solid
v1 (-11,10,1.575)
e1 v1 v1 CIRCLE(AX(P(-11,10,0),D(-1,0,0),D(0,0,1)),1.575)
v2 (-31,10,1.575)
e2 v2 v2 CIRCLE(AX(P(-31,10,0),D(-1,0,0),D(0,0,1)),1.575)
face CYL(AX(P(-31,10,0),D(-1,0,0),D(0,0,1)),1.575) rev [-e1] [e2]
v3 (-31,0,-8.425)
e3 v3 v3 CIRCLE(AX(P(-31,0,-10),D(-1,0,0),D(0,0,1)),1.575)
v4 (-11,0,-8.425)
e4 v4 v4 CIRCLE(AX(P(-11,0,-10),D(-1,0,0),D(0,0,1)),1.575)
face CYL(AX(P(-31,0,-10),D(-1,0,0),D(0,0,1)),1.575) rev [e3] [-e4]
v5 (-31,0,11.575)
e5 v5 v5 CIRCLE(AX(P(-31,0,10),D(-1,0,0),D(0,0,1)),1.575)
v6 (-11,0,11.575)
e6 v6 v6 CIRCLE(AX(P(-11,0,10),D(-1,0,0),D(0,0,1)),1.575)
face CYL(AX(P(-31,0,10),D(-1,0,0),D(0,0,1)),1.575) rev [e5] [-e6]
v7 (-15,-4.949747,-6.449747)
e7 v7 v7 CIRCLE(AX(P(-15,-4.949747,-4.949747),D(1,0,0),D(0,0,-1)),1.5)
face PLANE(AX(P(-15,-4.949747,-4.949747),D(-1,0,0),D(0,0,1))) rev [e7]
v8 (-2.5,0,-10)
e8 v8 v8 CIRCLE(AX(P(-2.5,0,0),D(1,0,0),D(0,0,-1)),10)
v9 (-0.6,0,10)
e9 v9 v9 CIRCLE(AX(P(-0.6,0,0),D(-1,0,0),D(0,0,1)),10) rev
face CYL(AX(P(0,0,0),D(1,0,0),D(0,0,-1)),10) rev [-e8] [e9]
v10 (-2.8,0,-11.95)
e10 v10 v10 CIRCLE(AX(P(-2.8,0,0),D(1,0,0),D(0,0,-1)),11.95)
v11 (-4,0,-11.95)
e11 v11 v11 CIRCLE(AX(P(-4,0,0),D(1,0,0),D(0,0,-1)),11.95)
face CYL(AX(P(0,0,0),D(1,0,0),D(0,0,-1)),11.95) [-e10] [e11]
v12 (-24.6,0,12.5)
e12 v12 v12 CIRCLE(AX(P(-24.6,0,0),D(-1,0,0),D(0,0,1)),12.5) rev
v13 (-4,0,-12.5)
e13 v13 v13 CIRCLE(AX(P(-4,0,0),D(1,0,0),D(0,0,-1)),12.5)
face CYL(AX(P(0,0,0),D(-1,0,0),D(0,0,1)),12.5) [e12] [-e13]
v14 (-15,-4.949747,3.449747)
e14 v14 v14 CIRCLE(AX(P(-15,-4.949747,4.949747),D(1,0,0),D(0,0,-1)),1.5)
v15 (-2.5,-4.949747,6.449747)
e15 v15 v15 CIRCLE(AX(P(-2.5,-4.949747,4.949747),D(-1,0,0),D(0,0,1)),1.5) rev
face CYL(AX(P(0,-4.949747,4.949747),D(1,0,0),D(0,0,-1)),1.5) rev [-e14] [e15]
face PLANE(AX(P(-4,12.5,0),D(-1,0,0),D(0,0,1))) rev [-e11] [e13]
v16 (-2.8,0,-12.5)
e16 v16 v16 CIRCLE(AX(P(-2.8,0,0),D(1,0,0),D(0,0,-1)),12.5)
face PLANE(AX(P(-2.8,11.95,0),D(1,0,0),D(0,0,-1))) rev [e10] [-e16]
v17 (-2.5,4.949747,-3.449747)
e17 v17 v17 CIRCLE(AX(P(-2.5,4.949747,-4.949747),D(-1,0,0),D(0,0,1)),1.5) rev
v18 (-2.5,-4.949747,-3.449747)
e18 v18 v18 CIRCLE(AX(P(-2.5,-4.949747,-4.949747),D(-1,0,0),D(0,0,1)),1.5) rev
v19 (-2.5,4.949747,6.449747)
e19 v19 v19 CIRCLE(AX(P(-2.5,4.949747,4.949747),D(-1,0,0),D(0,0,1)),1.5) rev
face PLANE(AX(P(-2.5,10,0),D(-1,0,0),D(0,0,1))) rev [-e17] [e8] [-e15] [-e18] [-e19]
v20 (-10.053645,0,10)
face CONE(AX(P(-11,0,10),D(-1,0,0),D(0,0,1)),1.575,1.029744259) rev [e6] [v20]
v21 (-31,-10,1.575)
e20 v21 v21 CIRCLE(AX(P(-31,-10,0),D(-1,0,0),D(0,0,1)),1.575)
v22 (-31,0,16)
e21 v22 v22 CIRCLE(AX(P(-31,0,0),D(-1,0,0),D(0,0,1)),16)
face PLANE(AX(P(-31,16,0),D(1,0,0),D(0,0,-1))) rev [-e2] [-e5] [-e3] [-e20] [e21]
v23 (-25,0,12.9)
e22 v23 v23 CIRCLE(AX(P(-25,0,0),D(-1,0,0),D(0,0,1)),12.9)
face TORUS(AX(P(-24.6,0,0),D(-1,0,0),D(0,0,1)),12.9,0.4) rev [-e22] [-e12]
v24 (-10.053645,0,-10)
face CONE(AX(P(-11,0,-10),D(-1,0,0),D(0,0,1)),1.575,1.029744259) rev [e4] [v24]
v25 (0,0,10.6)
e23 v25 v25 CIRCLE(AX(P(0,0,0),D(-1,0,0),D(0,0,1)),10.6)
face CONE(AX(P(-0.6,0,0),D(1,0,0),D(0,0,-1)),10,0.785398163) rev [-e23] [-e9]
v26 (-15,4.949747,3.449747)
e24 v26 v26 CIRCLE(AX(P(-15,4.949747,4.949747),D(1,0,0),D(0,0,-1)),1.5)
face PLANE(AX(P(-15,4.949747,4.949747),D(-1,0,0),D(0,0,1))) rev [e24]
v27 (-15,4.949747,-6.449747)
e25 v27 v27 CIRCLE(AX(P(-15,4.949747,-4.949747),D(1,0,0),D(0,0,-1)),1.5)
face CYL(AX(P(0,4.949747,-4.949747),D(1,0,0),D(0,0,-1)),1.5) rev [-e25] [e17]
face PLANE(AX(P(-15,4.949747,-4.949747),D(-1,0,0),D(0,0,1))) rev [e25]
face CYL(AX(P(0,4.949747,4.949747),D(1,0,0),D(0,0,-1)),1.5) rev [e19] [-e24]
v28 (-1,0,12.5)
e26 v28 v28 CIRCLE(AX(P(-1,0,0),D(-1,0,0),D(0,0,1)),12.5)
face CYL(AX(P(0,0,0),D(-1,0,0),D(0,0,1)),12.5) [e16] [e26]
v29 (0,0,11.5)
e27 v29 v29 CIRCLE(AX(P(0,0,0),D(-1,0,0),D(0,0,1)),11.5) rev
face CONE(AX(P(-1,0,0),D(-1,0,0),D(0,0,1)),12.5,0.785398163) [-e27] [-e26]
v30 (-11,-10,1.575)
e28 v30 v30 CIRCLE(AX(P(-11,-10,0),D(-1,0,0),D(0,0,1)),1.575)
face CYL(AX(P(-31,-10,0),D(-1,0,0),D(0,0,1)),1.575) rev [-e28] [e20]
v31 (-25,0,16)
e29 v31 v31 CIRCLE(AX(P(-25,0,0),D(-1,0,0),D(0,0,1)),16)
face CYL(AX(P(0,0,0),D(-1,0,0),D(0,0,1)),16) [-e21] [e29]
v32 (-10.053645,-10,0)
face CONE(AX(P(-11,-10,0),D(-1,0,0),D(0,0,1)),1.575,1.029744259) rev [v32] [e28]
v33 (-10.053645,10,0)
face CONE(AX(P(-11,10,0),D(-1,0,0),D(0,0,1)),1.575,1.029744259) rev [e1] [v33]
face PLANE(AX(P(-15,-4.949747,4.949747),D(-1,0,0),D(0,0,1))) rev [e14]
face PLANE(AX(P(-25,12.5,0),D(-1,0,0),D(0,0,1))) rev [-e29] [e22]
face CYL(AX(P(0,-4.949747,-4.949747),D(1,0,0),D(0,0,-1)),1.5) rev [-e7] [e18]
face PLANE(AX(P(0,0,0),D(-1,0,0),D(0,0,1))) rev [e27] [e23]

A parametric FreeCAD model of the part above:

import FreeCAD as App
import Part
import Sketcher
Q = App.Units.Quantity


def edges_at(feature, points):
    """Names of the edges that pass closest to the given points."""
    edges = feature.Shape.Edges
    near = lambda p: min(range(len(edges)), key=lambda i: edges[i].distToShape(Part.Vertex(*p))[0])
    return sorted({f"Edge{near(p) + 1}" for p in points})

doc = App.newDocument("Part")
params = doc.addObject("Spreadsheet::Sheet", "Params")
for row, (alias, value) in enumerate([
    ("sketch1_width", "25 mm"),
    ("sketch1_width2", "6 mm"),
    ("sketch1_height", "16 mm"),
    ("sketch1_height2", "12.5 mm"),
    ("revolution_angle", "360 deg"),
    ("sketch2_width", "1.2 mm"),
    ("sketch2_height", "0.55 mm"),
    ("groove_angle", "360 deg"),
    ("chamfer_size", "1 mm"),
    ("fillet_radius", "0.4 mm"),
    ("sketch3_diameter", "3 mm"),
    ("hole_diameter", "3 mm"),
    ("hole_depth", "15 mm"),
    ("sketch4_height", "10 mm"),
    ("sketch4_width", "2.5 mm"),
    ("groove2_angle", "360 deg"),
    ("chamfer2_size", "0.6 mm"),
    ("sketch5_width", "20 mm"),
    ("groove3_angle", "360 deg"),
], start=1):
    params.set(f"A{row}", alias)
    params.set(f"B{row}", "=" + value)
    params.setAlias(f"B{row}", alias)

body = doc.addObject("PartDesign::Body", "Body")

# Sketch on XY plane
sketch1 = doc.addObject("Sketcher::SketchObject", "Sketch")
body.addObject(sketch1)
sketch1.AttachmentSupport = (doc.XY_Plane, [""])
sketch1.MapMode = "FlatFace"
sketch1.addGeometry([
    Part.LineSegment(App.Vector(0, 0, 0), App.Vector(0, 12.5, 0)),  # 0
    Part.LineSegment(App.Vector(0, 12.5, 0), App.Vector(-25, 12.5, 0)),  # 1
    Part.LineSegment(App.Vector(-25, 12.5, 0), App.Vector(-25, 16, 0)),  # 2
    Part.LineSegment(App.Vector(-25, 16, 0), App.Vector(-31, 16, 0)),  # 3
    Part.LineSegment(App.Vector(-31, 16, 0), App.Vector(-31, 0, 0)),  # 4
    Part.LineSegment(App.Vector(-31, 0, 0), App.Vector(0, 0, 0)),  # 5
], False)
sketch1.addConstraint([
    Sketcher.Constraint("Coincident", 0, 2, 1, 1),
    Sketcher.Constraint("Coincident", 1, 2, 2, 1),
    Sketcher.Constraint("Coincident", 2, 2, 3, 1),
    Sketcher.Constraint("Coincident", 3, 2, 4, 1),
    Sketcher.Constraint("Coincident", 4, 2, 5, 1),
    Sketcher.Constraint("Coincident", 5, 2, 0, 1),
    Sketcher.Constraint("Vertical", 0),
    Sketcher.Constraint("Horizontal", 1),
    Sketcher.Constraint("Vertical", 2),
    Sketcher.Constraint("Horizontal", 3),
    Sketcher.Constraint("Vertical", 4),
    Sketcher.Constraint("Horizontal", 5),
    Sketcher.Constraint("Coincident", 5, 2, -1, 1),
    Sketcher.Constraint("DistanceX", 1, 2, 1, 1, 25.0),
    Sketcher.Constraint("DistanceX", 3, 2, 3, 1, 6.0),
    Sketcher.Constraint("DistanceY", 4, 2, 4, 1, 16.0),
    Sketcher.Constraint("DistanceY", 0, 1, 0, 2, 12.5),
])
sketch1.setExpression("Constraints[13]", "Params.sketch1_width")
sketch1.setExpression("Constraints[14]", "Params.sketch1_width2")
sketch1.setExpression("Constraints[15]", "Params.sketch1_height")
sketch1.setExpression("Constraints[16]", "Params.sketch1_height2")
revolution = doc.addObject("PartDesign::Revolution", "Revolution")
body.addObject(revolution)
revolution.Profile = sketch1
revolution.ReferenceAxis = (sketch1, ["H_Axis"])
revolution.setExpression("Angle", "Params.revolution_angle")

# Sketch on XY plane
sketch2 = doc.addObject("Sketcher::SketchObject", "Sketch001")
body.addObject(sketch2)
sketch2.AttachmentSupport = (doc.XY_Plane, [""])
sketch2.MapMode = "FlatFace"
sketch2.addGeometry([
    Part.LineSegment(App.Vector(-4, 12.5, 0), App.Vector(-4, 11.9, 0)),
    Part.LineSegment(App.Vector(-4, 11.9, 0), App.Vector(-2.8, 11.9, 0)),
    Part.LineSegment(App.Vector(-2.8, 11.9, 0), App.Vector(-2.8, 12.5, 0)),
    Part.LineSegment(App.Vector(-2.8, 12.5, 0), App.Vector(-4, 12.5, 0)),
], False)
sketch2.addConstraint([
    Sketcher.Constraint("Coincident", 0, 2, 1, 1),
    Sketcher.Constraint("Coincident", 1, 2, 2, 1),
    Sketcher.Constraint("Coincident", 2, 2, 3, 1),
    Sketcher.Constraint("Coincident", 3, 2, 0, 1),
    Sketcher.Constraint("Vertical", 0),
    Sketcher.Constraint("Horizontal", 1),
    Sketcher.Constraint("Vertical", 2),
    Sketcher.Constraint("Horizontal", 3),
    Sketcher.Constraint("DistanceX", 1, 1, 1, 2, 1.2),
    Sketcher.Constraint("DistanceX", 0, 2, -1, 1, 4.0),
    Sketcher.Constraint("DistanceY", 0, 2, 0, 1, 0.55),
    Sketcher.Constraint("DistanceY", -1, 1, 2, 2, 12.5),
])
sketch2.setExpression("Constraints[8]", "Params.sketch2_width")
sketch2.setExpression("Constraints[10]", "Params.sketch2_height")
groove = doc.addObject("PartDesign::Groove", "Groove")
body.addObject(groove)
groove.Profile = sketch2
groove.ReferenceAxis = (sketch2, ["H_Axis"])
groove.setExpression("Angle", "Params.groove_angle")
doc.recompute()

chamfer = doc.addObject("PartDesign::Chamfer", "Chamfer")
body.addObject(chamfer)
chamfer.Base = (groove, edges_at(groove, [(0, -12.5, 0)]))
chamfer.setExpression("Size", "Params.chamfer_size")
doc.recompute()

fillet = doc.addObject("PartDesign::Fillet", "Fillet")
body.addObject(fillet)
fillet.Base = (chamfer, edges_at(chamfer, [(-25, -12.5, 0)]))
fillet.setExpression("Radius", "Params.fillet_radius")

# Sketch on YZ plane
sketch3 = doc.addObject("Sketcher::SketchObject", "Sketch002")
body.addObject(sketch3)
sketch3.AttachmentSupport = (doc.YZ_Plane, [""])
sketch3.MapMode = "FlatFace"
sketch3.addGeometry(Part.Circle(App.Vector(4.9, -4.9, 0), App.Vector(0, 0, 1), 1.5), False)
sketch3.addConstraint([
    Sketcher.Constraint("Diameter", 0, 3.0),
    Sketcher.Constraint("DistanceX", -1, 1, 0, 3, 4.949747),
    Sketcher.Constraint("DistanceY", 0, 3, -1, 1, 4.949747),
])
sketch3.setExpression("Constraints[0]", "Params.sketch3_diameter")
doc.recompute()
hole = doc.addObject("PartDesign::Hole", "Hole")
body.addObject(hole)
hole.Profile = sketch3
hole.ThreadType = "None"
hole.setExpression("Diameter", "Params.hole_diameter")
hole.DepthType = "Dimension"
hole.setExpression("Depth", "Params.hole_depth")
hole.DrillPoint = "Flat"
doc.recompute()

polarpattern = doc.addObject("PartDesign::PolarPattern", "PolarPattern")
body.addObject(polarpattern)
polarpattern.Originals = [hole]
polarpattern.Axis = (doc.X_Axis, [""])
polarpattern.Angle = 360
polarpattern.Occurrences = 4
body.Tip = polarpattern

# Sketch on XY plane
sketch4 = doc.addObject("Sketcher::SketchObject", "Sketch003")
body.addObject(sketch4)
sketch4.AttachmentSupport = (doc.XY_Plane, [""])
sketch4.MapMode = "FlatFace"
sketch4.addGeometry([
    Part.LineSegment(App.Vector(-2.5, 10, 0), App.Vector(-2.5, 0, 0)),
    Part.LineSegment(App.Vector(-2.5, 0, 0), App.Vector(0, 0, 0)),
    Part.LineSegment(App.Vector(0, 0, 0), App.Vector(0, 10, 0)),
    Part.LineSegment(App.Vector(0, 10, 0), App.Vector(-2.5, 10, 0)),
], False)
sketch4.addConstraint([
    Sketcher.Constraint("Coincident", 0, 2, 1, 1),
    Sketcher.Constraint("Coincident", 1, 2, 2, 1),
    Sketcher.Constraint("Coincident", 2, 2, 3, 1),
    Sketcher.Constraint("Coincident", 3, 2, 0, 1),
    Sketcher.Constraint("Vertical", 0),
    Sketcher.Constraint("Horizontal", 1),
    Sketcher.Constraint("Vertical", 2),
    Sketcher.Constraint("Horizontal", 3),
    Sketcher.Constraint("Coincident", 1, 2, -1, 1),
    Sketcher.Constraint("DistanceY", 0, 2, 0, 1, 10.0),
    Sketcher.Constraint("DistanceX", 1, 1, 1, 2, 2.5),
])
sketch4.setExpression("Constraints[9]", "Params.sketch4_height")
sketch4.setExpression("Constraints[10]", "Params.sketch4_width")
groove2 = doc.addObject("PartDesign::Groove", "Groove001")
body.addObject(groove2)
groove2.Profile = sketch4
groove2.ReferenceAxis = (sketch4, ["H_Axis"])
groove2.setExpression("Angle", "Params.groove2_angle")
doc.recompute()

chamfer2 = doc.addObject("PartDesign::Chamfer", "Chamfer001")
body.addObject(chamfer2)
chamfer2.Base = (groove2, edges_at(groove2, [(0, -10, 0)]))
chamfer2.setExpression("Size", "Params.chamfer2_size")

# Sketch on XZ plane
sketch5 = doc.addObject("Sketcher::SketchObject", "Sketch004")
body.addObject(sketch5)
sketch5.AttachmentSupport = (doc.XZ_Plane, [""])
sketch5.MapMode = "FlatFace"
sketch5.addGeometry([
    Part.LineSegment(App.Vector(-10.1, -10, 0), App.Vector(-31, -10, 0)),
    Part.LineSegment(App.Vector(-31, -10, 0), App.Vector(-31, -8.4, 0)),
    Part.LineSegment(App.Vector(-31, -8.4, 0), App.Vector(-11, -8.4, 0)),
    Part.LineSegment(App.Vector(-11, -8.4, 0), App.Vector(-10.1, -10, 0)),
], False)
sketch5.addGeometry(Part.LineSegment(App.Vector(-31, -10, 0), App.Vector(-10.1, -10, 0)), True)  # axis
sketch5.addConstraint([
    Sketcher.Constraint("Coincident", 0, 2, 1, 1),
    Sketcher.Constraint("Coincident", 1, 2, 2, 1),
    Sketcher.Constraint("Coincident", 2, 2, 3, 1),
    Sketcher.Constraint("Coincident", 3, 2, 0, 1),
    Sketcher.Constraint("Horizontal", 0),
    Sketcher.Constraint("Vertical", 1),
    Sketcher.Constraint("Horizontal", 2),
    Sketcher.Constraint("Horizontal", 4),
    Sketcher.Constraint("Coincident", 4, 1, 0, 2),
    Sketcher.Constraint("Equal", 0, 4),
    Sketcher.Constraint("DistanceX", 2, 1, 2, 2, 20.0),
    Sketcher.Constraint("Angle", 3, Q("-59 deg")),
    Sketcher.Constraint("DistanceX", 0, 2, -1, 1, 31.0),
    Sketcher.Constraint("DistanceY", 0, 2, -1, 1, 10.0),
    Sketcher.Constraint("DistanceY", 1, 1, 1, 2, 1.575),
])
sketch5.setExpression("Constraints[10]", "Params.sketch5_width")
groove3 = doc.addObject("PartDesign::Groove", "Groove002")
body.addObject(groove3)
groove3.Profile = sketch5
groove3.ReferenceAxis = (sketch5, ["Axis0"])
groove3.setExpression("Angle", "Params.groove3_angle")
doc.recompute()

polarpattern2 = doc.addObject("PartDesign::PolarPattern", "PolarPattern001")
body.addObject(polarpattern2)
polarpattern2.Originals = [groove3]
polarpattern2.Axis = (doc.X_Axis, [""])
polarpattern2.Angle = 360
polarpattern2.Occurrences = 4
body.Tip = polarpattern2

doc.recompute()
